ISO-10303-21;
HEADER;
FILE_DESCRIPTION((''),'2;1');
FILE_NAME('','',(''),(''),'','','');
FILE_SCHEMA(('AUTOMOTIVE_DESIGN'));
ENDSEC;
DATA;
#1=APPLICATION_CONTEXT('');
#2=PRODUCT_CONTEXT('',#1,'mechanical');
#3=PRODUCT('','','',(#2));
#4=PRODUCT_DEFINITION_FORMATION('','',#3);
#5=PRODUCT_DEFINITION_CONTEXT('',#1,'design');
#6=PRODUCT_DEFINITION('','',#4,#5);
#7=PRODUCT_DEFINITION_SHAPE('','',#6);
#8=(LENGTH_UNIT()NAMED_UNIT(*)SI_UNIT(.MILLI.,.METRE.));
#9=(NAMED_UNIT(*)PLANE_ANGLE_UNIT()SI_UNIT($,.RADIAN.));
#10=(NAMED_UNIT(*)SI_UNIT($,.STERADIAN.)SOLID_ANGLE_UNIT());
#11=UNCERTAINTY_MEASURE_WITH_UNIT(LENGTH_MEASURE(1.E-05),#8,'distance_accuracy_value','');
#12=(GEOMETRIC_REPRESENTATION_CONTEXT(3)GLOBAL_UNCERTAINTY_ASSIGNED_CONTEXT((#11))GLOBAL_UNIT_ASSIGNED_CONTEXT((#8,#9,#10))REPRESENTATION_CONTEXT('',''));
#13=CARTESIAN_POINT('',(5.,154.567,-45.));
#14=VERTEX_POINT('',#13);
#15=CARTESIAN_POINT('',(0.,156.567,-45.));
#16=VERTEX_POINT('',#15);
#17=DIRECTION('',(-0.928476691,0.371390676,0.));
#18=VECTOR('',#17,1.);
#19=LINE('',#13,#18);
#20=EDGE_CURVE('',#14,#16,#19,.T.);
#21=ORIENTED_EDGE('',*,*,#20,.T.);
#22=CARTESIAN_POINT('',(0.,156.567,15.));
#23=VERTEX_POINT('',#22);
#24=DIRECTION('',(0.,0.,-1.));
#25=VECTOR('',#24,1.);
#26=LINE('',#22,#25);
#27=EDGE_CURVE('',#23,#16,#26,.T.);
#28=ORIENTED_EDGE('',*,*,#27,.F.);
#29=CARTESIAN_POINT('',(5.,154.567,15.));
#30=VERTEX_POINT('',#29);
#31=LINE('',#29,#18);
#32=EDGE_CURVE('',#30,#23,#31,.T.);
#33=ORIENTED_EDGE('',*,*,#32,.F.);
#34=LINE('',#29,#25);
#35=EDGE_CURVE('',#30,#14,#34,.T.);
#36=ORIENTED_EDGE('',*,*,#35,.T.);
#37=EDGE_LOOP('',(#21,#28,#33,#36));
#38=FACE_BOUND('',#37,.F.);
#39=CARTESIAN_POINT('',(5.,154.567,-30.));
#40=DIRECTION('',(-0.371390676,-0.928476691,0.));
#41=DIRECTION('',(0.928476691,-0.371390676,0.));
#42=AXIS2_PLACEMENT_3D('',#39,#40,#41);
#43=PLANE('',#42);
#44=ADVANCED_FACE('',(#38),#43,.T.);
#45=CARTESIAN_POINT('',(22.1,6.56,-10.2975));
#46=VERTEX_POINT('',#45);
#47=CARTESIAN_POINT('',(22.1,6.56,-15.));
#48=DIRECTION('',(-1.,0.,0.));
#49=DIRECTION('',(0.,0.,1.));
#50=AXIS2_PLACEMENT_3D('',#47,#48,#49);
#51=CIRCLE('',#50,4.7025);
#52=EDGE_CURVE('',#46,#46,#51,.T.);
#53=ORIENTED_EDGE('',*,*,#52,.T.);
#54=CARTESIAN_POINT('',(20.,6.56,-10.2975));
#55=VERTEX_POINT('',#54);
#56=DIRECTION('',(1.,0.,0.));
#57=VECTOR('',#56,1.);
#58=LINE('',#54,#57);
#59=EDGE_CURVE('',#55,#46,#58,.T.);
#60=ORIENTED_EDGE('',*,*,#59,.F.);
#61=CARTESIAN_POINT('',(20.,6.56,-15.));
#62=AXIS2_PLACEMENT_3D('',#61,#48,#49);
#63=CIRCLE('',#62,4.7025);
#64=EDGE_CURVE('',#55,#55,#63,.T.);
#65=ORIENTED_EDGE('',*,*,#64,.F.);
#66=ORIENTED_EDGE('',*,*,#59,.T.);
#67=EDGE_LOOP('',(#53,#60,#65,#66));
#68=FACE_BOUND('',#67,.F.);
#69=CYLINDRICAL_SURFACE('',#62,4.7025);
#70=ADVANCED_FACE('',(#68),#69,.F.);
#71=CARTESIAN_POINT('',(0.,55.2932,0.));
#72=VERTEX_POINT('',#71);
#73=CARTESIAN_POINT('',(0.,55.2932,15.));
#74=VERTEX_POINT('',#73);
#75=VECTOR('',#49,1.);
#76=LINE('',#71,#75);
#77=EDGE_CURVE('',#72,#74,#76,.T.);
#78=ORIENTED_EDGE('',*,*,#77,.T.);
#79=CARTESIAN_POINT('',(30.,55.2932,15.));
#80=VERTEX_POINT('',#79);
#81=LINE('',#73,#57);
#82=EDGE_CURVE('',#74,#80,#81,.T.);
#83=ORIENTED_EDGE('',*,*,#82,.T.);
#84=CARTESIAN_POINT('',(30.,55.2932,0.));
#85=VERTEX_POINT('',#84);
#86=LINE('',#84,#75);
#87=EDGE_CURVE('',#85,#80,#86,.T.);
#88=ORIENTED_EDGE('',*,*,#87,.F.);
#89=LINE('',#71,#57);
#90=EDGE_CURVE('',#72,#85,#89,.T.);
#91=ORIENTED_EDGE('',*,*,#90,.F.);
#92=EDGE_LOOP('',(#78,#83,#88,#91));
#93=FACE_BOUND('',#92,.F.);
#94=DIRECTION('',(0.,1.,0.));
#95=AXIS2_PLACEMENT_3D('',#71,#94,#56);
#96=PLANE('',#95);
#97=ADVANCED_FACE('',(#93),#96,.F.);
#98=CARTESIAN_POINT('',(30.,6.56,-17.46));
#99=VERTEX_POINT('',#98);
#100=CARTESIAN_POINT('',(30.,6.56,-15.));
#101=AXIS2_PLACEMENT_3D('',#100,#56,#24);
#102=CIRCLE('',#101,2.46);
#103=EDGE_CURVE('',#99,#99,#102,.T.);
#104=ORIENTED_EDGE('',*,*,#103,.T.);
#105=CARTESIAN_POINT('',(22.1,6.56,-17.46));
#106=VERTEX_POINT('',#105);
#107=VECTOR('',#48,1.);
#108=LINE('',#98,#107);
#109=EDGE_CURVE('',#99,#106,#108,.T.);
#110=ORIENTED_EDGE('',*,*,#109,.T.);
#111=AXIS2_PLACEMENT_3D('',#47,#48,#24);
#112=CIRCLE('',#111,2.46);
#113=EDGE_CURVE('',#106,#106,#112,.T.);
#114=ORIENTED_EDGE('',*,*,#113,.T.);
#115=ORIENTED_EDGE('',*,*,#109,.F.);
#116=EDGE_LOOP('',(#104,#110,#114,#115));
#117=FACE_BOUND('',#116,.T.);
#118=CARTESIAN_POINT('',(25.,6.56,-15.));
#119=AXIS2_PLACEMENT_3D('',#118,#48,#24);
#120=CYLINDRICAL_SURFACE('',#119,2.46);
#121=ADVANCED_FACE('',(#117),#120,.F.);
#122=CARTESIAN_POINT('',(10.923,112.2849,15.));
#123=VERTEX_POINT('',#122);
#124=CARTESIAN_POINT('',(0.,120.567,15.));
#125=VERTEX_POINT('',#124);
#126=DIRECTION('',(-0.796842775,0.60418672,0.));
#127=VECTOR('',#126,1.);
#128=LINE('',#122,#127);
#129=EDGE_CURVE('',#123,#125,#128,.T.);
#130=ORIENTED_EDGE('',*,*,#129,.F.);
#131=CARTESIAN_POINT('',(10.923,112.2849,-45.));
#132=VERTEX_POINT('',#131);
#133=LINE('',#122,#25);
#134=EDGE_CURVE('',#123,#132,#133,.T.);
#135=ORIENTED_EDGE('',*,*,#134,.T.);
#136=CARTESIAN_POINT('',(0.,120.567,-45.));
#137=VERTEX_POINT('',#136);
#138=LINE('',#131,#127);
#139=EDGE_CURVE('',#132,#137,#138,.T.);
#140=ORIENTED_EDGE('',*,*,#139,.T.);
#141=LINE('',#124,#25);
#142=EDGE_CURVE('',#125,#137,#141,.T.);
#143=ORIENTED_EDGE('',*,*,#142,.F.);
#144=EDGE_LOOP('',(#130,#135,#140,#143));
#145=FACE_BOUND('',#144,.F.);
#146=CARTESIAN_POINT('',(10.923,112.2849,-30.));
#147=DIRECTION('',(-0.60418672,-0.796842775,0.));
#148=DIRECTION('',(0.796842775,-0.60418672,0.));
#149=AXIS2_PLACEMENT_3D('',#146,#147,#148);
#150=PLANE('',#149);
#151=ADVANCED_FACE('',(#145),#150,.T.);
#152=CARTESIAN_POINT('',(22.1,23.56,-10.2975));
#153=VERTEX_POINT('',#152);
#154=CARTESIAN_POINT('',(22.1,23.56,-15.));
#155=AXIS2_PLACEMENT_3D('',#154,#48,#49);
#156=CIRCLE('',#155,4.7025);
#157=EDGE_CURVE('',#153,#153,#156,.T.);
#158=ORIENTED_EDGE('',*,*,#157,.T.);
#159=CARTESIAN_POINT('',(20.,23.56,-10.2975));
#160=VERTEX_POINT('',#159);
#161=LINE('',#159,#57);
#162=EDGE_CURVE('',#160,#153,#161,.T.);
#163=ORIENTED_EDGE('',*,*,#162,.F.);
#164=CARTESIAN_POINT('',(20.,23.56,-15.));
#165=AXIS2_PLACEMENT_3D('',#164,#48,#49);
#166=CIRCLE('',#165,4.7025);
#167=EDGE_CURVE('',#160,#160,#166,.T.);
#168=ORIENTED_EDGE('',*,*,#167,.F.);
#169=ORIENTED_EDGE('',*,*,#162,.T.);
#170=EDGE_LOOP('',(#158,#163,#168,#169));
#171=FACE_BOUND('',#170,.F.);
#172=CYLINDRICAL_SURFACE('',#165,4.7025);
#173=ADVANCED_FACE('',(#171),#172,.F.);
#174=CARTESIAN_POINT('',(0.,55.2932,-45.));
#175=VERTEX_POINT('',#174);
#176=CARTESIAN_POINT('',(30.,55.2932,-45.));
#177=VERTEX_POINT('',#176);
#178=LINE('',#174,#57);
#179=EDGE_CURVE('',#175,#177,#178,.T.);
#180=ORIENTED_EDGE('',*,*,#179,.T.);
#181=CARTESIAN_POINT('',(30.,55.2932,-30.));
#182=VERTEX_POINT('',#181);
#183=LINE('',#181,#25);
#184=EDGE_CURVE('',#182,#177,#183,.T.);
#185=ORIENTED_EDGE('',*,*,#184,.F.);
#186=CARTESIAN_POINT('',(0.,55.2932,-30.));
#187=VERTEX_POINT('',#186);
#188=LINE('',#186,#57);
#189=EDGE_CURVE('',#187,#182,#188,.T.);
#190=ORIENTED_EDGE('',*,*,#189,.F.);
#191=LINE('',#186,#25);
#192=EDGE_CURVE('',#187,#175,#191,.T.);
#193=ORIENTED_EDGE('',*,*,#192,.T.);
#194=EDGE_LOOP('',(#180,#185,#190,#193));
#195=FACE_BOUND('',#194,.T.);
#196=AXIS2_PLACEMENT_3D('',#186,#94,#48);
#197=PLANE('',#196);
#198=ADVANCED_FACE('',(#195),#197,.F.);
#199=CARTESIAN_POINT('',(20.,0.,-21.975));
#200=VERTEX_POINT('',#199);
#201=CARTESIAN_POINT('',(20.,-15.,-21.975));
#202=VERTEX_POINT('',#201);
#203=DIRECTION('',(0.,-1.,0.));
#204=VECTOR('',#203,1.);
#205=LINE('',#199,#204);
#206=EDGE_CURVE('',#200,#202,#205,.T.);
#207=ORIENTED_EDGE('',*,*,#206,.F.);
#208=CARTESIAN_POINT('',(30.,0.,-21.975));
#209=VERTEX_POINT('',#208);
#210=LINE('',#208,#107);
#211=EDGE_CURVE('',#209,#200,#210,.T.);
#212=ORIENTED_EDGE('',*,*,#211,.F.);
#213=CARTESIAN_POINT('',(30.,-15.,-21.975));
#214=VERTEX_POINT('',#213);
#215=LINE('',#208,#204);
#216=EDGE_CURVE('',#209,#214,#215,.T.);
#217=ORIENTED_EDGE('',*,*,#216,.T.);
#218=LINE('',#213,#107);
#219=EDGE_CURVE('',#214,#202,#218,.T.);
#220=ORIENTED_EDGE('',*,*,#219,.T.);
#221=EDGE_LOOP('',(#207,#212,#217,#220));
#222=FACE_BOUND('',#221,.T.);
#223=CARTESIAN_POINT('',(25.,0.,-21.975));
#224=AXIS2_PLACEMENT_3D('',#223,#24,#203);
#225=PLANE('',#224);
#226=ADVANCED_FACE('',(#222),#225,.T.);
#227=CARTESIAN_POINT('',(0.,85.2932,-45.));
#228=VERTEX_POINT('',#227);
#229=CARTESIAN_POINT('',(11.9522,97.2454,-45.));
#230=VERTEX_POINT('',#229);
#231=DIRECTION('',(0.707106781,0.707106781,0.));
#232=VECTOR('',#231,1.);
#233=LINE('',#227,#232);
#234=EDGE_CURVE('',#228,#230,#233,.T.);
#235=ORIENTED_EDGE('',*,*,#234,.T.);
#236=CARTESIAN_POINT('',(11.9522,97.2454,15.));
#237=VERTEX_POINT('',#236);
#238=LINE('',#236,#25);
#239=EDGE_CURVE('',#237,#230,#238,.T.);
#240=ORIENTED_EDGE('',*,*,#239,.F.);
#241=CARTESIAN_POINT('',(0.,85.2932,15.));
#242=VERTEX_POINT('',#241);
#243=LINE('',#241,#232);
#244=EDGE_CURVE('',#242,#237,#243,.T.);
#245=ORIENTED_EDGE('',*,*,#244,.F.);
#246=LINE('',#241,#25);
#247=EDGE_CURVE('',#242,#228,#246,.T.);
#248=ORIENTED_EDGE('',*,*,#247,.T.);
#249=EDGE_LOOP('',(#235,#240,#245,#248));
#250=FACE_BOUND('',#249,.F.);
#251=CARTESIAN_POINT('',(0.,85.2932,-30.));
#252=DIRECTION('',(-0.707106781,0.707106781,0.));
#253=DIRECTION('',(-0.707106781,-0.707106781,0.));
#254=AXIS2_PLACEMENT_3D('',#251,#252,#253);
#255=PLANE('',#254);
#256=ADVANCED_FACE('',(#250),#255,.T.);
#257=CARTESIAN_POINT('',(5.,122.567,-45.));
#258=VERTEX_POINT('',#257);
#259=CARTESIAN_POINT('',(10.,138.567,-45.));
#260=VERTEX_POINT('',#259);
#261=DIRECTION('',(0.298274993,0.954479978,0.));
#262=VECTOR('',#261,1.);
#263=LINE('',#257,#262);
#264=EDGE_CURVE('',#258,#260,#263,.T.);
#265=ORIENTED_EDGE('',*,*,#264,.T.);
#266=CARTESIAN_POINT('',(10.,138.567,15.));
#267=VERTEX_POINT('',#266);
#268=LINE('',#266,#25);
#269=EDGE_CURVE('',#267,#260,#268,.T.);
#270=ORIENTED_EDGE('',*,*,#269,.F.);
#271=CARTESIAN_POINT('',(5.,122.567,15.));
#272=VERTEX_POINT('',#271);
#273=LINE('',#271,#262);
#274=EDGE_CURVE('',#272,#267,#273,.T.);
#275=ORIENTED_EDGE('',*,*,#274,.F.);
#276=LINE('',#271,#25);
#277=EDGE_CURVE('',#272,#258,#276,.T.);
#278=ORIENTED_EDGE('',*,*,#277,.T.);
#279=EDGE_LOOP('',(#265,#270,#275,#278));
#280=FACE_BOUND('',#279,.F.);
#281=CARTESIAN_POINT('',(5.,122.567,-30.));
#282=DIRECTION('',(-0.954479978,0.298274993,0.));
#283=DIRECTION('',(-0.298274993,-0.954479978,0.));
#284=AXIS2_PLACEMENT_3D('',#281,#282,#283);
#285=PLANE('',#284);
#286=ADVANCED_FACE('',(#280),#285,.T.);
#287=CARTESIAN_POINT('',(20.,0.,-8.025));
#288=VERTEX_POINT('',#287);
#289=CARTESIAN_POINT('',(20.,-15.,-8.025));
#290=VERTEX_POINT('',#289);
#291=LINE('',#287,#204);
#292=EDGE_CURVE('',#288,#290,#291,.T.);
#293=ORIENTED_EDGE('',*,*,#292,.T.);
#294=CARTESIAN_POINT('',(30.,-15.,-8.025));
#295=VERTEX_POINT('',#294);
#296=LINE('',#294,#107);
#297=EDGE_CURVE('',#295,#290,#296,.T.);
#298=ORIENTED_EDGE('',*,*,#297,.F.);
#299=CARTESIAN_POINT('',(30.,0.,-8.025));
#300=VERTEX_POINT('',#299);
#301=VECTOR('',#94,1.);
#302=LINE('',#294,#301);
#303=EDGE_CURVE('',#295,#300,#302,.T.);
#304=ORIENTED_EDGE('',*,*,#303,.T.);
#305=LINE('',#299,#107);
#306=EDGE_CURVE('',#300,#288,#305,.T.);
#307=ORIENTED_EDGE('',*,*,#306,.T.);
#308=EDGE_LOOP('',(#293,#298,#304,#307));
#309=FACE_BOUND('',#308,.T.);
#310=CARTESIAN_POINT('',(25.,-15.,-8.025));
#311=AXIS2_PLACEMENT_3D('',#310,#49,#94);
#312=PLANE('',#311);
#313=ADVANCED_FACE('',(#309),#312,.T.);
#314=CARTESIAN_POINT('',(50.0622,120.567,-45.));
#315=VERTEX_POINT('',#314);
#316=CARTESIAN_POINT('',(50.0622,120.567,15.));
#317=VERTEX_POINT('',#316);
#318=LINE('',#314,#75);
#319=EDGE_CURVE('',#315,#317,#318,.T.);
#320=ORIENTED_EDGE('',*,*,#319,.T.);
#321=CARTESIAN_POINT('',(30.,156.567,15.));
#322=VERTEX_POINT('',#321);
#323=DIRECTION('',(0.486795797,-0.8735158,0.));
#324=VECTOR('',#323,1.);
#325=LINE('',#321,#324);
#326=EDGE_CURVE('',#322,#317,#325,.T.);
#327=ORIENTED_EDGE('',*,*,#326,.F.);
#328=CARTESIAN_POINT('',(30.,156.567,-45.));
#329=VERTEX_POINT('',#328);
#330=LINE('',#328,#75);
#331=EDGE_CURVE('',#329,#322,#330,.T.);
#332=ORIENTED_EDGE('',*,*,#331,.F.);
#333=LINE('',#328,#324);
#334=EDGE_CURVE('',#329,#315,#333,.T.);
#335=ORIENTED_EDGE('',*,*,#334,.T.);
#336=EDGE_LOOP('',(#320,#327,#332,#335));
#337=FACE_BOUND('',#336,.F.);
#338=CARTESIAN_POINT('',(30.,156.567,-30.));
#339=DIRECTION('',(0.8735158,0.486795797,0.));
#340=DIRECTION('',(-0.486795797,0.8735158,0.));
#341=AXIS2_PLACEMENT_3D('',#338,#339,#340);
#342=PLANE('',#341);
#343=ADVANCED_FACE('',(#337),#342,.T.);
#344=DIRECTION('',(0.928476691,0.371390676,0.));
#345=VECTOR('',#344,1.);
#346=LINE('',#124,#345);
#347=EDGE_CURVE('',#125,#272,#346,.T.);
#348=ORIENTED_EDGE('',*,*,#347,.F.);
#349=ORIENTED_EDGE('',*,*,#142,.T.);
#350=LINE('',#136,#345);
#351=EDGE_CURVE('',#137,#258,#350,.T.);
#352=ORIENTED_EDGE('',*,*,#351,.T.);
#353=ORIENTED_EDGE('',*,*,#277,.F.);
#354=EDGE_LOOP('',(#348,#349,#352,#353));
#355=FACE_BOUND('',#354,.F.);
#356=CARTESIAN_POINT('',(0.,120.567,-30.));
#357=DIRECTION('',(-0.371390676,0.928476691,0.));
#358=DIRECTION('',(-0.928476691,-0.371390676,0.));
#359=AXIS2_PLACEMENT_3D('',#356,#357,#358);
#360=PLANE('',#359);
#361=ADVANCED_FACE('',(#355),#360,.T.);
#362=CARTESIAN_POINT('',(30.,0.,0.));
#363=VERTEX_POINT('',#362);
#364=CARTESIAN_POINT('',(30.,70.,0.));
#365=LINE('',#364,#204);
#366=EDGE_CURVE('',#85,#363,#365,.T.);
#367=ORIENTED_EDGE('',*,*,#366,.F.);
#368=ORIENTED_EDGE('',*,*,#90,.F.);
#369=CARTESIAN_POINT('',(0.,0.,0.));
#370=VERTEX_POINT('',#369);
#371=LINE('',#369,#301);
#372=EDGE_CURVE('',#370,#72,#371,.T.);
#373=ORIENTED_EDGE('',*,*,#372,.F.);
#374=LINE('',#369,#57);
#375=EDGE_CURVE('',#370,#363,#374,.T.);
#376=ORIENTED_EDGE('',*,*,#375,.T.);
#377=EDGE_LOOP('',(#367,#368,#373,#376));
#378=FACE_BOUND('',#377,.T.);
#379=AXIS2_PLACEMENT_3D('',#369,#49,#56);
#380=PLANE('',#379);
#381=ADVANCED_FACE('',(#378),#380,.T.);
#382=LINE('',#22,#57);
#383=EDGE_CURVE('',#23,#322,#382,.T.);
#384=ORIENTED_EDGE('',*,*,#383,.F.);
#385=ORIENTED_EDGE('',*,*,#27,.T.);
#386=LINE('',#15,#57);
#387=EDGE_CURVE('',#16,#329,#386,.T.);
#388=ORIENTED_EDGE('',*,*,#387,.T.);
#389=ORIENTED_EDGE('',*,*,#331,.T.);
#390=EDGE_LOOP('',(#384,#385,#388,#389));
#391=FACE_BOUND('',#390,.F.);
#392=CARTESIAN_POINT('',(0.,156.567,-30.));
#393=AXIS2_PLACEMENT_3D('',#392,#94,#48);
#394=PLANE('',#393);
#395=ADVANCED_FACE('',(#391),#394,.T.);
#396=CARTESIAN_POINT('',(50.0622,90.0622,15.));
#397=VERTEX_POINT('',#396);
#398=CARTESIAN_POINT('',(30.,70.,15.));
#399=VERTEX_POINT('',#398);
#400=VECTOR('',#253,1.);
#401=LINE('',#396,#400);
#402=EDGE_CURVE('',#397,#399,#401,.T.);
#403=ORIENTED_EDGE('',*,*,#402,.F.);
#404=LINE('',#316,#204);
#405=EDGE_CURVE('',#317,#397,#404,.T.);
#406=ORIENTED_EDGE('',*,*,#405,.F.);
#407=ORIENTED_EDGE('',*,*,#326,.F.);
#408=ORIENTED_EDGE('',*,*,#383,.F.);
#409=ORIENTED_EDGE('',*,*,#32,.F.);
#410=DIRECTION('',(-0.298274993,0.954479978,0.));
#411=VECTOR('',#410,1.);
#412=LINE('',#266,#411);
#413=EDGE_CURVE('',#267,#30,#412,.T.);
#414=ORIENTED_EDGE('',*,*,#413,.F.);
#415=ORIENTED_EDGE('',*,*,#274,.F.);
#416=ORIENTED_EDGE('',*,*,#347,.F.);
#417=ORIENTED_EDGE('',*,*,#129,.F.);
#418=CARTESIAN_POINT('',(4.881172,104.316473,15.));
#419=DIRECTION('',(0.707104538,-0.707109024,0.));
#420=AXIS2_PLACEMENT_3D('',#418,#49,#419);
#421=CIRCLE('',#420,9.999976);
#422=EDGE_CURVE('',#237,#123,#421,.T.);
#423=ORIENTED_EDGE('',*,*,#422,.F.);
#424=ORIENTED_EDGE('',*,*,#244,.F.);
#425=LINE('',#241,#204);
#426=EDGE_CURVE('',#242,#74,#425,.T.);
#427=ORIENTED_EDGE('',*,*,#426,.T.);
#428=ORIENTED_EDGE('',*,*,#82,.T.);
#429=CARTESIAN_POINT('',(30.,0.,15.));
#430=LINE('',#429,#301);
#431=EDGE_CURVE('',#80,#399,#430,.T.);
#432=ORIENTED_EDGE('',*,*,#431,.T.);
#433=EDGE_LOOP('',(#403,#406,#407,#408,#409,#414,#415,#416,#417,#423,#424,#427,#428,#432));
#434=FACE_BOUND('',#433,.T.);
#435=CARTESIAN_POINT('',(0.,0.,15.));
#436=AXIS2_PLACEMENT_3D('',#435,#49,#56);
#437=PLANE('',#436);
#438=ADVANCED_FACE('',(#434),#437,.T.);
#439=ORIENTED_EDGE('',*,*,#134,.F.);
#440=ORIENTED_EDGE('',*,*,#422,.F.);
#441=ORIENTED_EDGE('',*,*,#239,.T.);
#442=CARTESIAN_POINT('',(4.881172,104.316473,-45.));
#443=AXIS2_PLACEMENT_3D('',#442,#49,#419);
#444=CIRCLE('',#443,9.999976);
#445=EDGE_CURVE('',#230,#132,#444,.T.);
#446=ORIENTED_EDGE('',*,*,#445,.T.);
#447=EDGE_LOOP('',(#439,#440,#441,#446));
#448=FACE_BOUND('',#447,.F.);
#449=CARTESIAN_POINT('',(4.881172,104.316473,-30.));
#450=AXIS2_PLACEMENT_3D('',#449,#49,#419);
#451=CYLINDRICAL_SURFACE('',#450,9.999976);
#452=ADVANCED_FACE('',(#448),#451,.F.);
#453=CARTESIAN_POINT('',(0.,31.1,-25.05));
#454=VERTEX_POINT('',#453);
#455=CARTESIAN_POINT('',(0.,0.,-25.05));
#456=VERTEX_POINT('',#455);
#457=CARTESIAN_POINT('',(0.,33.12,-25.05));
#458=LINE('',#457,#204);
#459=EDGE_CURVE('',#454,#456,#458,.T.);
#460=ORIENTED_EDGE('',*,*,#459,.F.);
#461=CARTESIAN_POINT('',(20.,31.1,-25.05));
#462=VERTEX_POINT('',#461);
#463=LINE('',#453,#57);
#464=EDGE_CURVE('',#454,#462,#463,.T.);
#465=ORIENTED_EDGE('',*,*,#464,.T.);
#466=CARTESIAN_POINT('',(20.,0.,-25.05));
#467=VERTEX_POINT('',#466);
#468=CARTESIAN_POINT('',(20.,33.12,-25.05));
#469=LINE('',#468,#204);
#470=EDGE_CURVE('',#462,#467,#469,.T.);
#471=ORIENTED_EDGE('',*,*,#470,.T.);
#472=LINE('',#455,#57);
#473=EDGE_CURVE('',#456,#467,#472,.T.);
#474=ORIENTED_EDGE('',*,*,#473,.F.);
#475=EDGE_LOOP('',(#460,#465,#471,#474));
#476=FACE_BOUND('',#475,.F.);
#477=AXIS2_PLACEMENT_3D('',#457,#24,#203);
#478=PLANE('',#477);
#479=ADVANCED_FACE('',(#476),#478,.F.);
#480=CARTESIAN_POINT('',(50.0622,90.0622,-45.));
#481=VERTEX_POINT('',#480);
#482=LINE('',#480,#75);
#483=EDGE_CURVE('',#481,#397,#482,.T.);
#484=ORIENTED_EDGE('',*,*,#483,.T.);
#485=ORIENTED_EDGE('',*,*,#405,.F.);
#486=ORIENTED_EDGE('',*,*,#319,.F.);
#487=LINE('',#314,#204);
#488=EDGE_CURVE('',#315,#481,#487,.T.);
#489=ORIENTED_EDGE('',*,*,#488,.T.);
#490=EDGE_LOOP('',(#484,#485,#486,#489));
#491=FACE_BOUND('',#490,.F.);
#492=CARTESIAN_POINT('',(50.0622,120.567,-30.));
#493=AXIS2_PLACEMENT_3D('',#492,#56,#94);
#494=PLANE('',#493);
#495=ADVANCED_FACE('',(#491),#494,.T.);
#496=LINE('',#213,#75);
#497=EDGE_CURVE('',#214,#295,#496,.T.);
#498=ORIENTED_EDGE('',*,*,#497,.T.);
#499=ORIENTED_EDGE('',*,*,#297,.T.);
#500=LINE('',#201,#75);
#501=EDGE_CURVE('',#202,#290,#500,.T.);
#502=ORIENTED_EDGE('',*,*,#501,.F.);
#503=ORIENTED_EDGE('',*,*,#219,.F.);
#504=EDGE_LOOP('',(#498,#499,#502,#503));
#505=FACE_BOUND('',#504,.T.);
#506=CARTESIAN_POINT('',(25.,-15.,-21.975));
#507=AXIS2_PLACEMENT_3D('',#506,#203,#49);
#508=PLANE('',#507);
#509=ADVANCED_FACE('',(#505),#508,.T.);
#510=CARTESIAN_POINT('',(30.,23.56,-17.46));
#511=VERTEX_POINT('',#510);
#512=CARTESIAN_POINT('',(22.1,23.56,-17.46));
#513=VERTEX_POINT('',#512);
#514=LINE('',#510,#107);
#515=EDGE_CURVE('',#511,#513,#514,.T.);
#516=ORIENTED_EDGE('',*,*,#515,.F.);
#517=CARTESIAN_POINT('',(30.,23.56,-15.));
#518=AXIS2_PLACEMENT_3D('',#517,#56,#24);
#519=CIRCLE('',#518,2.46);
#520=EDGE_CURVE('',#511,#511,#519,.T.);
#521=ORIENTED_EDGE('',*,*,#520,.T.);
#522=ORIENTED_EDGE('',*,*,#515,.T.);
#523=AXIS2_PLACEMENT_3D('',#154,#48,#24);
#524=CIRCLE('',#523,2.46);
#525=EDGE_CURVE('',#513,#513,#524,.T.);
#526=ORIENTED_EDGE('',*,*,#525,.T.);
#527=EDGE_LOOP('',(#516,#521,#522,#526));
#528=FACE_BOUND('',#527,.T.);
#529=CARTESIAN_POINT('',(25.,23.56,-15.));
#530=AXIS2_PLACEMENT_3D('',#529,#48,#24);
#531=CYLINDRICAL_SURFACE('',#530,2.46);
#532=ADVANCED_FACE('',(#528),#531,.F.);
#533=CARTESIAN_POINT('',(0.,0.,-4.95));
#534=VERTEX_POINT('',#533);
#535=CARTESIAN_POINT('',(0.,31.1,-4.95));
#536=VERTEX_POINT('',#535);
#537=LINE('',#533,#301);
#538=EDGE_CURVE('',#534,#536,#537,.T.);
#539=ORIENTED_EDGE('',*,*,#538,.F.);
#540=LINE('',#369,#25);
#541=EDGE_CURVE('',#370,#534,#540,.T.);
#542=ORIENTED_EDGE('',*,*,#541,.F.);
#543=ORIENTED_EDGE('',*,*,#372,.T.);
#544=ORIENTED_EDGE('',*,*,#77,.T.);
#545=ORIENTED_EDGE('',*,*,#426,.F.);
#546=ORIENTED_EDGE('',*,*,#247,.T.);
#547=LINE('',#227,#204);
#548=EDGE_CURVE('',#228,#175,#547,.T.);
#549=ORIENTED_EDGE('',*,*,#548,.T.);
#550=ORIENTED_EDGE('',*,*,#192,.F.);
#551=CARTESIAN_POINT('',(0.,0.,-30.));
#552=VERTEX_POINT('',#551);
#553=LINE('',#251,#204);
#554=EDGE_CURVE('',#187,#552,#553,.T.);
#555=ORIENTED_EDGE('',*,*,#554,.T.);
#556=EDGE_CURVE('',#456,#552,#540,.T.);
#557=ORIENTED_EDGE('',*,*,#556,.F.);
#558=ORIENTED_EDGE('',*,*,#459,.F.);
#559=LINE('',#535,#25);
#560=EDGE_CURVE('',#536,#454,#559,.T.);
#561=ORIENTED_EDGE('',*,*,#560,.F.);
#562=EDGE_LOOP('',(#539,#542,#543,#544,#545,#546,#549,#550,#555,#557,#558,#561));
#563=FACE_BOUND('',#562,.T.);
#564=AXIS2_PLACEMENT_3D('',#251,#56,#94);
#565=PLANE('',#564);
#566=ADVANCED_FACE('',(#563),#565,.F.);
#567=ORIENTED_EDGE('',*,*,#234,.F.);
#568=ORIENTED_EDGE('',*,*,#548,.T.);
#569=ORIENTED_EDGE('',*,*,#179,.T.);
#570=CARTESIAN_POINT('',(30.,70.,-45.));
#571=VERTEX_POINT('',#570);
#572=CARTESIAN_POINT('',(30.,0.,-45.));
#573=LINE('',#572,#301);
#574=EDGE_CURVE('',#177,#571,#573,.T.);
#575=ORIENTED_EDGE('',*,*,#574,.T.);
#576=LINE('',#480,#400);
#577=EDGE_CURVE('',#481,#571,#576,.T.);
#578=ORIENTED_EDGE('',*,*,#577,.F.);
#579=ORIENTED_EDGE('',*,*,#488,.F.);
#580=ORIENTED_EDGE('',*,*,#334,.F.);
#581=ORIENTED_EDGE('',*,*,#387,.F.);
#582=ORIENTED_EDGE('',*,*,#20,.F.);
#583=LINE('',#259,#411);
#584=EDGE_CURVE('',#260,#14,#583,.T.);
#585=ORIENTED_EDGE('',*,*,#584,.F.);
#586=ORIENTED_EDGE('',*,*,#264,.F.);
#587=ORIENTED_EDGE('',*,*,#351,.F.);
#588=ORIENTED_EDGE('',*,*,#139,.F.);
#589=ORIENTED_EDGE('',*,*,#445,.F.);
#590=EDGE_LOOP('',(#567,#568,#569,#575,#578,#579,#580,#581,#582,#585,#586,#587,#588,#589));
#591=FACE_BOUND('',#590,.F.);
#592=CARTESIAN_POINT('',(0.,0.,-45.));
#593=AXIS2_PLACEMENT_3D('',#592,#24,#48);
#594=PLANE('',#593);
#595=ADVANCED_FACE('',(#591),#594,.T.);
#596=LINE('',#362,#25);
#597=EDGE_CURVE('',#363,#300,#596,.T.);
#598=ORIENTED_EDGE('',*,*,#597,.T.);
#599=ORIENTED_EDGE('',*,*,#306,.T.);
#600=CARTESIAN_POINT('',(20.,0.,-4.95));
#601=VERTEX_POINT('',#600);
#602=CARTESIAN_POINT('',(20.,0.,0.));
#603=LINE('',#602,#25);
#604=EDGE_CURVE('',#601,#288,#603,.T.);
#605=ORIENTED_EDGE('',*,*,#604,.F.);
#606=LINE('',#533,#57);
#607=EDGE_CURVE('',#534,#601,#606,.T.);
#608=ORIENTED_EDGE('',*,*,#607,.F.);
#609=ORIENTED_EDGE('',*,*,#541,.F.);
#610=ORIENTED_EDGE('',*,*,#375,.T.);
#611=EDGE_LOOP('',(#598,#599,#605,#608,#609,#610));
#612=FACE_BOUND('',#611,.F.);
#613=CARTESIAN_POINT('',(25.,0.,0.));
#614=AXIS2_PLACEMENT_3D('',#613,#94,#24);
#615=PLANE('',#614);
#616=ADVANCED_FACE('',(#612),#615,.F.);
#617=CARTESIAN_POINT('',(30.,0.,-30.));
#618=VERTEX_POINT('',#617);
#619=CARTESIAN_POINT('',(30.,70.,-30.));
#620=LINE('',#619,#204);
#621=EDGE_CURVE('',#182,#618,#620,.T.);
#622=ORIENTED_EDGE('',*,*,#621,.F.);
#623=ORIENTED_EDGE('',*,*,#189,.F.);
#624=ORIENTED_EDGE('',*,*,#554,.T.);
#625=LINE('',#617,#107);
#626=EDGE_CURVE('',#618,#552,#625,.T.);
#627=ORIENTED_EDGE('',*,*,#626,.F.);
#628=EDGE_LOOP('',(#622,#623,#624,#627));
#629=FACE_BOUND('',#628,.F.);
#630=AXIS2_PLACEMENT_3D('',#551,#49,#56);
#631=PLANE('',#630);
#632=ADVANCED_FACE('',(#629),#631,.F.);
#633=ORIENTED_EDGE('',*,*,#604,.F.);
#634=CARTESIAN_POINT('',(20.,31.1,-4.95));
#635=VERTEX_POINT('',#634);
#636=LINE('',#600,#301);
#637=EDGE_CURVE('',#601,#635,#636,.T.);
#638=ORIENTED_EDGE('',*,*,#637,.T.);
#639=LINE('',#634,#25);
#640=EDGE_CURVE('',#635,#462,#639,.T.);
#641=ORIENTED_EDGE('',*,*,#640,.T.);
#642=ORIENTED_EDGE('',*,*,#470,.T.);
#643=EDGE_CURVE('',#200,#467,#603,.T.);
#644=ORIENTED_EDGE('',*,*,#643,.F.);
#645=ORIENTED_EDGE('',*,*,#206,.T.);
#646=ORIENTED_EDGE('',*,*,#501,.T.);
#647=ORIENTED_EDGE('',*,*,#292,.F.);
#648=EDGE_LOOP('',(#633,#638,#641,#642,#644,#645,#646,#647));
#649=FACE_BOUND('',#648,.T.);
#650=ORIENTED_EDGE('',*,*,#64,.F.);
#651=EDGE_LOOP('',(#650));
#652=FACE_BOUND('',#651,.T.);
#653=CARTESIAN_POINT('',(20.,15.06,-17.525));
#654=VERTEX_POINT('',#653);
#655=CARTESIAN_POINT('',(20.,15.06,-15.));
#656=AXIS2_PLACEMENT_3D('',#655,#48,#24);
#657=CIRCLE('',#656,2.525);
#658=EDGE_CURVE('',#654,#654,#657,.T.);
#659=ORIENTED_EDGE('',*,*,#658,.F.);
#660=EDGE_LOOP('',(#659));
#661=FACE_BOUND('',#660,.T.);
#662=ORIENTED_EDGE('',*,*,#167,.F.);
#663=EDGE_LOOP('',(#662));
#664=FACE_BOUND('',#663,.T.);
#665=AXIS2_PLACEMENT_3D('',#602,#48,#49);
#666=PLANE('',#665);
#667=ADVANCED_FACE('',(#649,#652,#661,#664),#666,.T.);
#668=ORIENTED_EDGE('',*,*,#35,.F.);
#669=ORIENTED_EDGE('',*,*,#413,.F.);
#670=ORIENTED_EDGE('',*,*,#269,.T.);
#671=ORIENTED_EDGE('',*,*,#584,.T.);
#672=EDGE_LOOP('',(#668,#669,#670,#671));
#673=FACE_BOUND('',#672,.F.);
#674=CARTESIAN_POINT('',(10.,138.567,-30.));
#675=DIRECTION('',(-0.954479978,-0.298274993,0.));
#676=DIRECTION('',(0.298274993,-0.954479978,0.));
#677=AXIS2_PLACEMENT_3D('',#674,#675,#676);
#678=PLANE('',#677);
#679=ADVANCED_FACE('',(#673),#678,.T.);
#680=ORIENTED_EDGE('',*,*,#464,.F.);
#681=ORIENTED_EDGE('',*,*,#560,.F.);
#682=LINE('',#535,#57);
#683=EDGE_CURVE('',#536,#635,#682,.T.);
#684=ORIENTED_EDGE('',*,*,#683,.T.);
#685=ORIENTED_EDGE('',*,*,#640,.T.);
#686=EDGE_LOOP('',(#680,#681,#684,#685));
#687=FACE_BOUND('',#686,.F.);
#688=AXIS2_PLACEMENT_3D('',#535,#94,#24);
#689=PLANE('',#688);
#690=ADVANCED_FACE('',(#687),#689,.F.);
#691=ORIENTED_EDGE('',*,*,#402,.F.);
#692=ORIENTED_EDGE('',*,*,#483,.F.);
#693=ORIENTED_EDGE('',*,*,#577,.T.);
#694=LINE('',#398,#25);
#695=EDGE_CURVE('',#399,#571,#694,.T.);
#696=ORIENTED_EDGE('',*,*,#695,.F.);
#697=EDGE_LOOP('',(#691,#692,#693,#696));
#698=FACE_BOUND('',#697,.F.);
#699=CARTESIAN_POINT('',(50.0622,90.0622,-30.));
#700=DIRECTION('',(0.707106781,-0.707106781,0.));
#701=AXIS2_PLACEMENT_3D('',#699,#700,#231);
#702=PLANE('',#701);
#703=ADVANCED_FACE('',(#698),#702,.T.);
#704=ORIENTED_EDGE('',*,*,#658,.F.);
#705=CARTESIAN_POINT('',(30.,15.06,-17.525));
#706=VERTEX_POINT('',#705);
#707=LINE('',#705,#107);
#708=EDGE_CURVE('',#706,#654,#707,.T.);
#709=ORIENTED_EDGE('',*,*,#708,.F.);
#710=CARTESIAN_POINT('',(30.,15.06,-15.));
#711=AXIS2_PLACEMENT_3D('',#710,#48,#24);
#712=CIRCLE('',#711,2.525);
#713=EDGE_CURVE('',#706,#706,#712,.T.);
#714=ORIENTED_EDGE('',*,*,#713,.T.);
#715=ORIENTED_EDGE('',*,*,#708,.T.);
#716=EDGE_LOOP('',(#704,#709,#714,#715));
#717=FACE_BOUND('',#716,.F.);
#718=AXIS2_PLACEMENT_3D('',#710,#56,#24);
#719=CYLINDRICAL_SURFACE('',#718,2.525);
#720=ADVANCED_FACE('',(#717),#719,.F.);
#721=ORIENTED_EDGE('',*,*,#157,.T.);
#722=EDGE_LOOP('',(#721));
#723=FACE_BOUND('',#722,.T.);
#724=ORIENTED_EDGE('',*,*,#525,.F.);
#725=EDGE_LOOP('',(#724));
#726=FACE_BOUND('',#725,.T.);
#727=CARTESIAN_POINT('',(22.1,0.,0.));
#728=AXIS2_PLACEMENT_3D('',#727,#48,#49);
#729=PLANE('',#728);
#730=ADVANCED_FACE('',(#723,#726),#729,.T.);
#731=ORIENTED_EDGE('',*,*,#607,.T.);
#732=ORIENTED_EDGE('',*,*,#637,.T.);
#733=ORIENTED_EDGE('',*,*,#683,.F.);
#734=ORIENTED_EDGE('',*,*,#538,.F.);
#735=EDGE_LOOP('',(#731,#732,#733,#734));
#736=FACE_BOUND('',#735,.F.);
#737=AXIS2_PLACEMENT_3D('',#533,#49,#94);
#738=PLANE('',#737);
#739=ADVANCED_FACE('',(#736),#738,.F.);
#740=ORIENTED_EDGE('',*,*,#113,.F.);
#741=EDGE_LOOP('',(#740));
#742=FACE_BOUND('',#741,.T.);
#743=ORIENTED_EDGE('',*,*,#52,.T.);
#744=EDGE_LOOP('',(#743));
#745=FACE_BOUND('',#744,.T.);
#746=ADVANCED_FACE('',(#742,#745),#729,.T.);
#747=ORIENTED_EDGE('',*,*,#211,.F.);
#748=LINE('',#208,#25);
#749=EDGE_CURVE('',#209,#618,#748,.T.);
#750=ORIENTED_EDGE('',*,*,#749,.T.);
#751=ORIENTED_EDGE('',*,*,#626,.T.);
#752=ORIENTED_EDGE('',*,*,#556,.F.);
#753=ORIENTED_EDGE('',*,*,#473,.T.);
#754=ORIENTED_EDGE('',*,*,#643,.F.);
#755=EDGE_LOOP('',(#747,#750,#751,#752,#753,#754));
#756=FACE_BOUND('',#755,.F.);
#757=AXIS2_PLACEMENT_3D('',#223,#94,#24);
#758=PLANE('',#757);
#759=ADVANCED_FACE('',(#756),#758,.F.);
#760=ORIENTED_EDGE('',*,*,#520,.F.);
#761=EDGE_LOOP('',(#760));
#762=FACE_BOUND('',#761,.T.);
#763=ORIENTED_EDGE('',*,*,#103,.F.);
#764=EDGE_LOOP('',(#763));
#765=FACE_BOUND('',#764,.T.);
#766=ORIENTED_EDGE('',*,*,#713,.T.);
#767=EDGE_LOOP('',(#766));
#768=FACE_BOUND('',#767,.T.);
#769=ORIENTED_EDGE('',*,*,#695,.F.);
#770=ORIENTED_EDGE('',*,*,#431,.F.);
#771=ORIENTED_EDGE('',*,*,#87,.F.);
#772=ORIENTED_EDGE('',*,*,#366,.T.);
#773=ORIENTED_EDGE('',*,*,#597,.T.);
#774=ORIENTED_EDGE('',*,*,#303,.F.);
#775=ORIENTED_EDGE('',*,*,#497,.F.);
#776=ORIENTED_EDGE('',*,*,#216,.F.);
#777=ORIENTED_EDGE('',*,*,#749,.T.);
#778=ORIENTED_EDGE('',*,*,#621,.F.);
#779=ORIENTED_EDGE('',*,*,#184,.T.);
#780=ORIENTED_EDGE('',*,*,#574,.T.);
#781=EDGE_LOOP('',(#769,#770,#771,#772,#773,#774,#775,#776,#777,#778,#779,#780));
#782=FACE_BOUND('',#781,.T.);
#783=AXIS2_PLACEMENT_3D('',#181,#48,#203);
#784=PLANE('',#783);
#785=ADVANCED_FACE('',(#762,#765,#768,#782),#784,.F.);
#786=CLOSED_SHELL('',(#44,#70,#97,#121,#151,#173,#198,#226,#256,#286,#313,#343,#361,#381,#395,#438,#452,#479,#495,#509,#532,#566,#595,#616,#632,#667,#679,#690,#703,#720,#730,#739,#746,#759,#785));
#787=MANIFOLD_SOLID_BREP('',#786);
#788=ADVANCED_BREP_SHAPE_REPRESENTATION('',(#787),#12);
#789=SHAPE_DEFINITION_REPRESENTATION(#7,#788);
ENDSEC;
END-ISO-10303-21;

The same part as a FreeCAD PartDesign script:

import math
import FreeCAD as App
import Part
import Sketcher
Q = App.Units.Quantity

doc = App.newDocument("Part")
body = doc.addObject("PartDesign::Body", "Body")

# Sketch on XY plane
sketch1 = body.newObject("Sketcher::SketchObject", "Sketch")
sketch1.AttachmentSupport = (doc.getObject("XY_Plane"), [""])
sketch1.MapMode = "FlatFace"
sketch1.addGeometry([
    Part.LineSegment(App.Vector(0, 40, 0), App.Vector(0, 0, 0)),
    Part.LineSegment(App.Vector(0, 0, 0), App.Vector(25, 0, 0)),
    Part.LineSegment(App.Vector(25, 0, 0), App.Vector(25, 40, 0)),
    Part.LineSegment(App.Vector(25, 40, 0), App.Vector(0, 40, 0)),
], False)
sketch1.addConstraint([
    Sketcher.Constraint("Coincident", 0, 2, 1, 1),
    Sketcher.Constraint("Coincident", 1, 2, 2, 1),
    Sketcher.Constraint("Coincident", 2, 2, 3, 1),
    Sketcher.Constraint("Coincident", 3, 2, 0, 1),
    Sketcher.Constraint("Vertical", 0),
    Sketcher.Constraint("Horizontal", 1),
    Sketcher.Constraint("Vertical", 2),
    Sketcher.Constraint("Horizontal", 3),
    Sketcher.Constraint("Coincident", 0, 2, -1, 1),
    Sketcher.Constraint("DistanceX", 1, 1, 1, 2, Q("25 mm")),
    Sketcher.Constraint("DistanceY", 0, 2, 0, 1, Q("40 mm")),
])
pad1 = body.newObject("PartDesign::Pad", "Pad")
pad1.Profile = sketch1
pad1.Length = 30
pad1.Reversed = True

# Sketch on YZ plane
sketch2 = body.newObject("Sketcher::SketchObject", "Sketch001")
sketch2.AttachmentSupport = (doc.getObject("YZ_Plane"), [""])
sketch2.MapMode = "FlatFace"
sketch2.AttachmentOffset = App.Placement(App.Vector(0, 0, 25), App.Rotation())
sketch2.addGeometry(Part.Circle(App.Vector(6.56, -15, 0), App.Vector(0, 0, 1), 2.46), False)
sketch2.addConstraint([
    Sketcher.Constraint("Diameter", 0, Q("4.92 mm")),
    Sketcher.Constraint("DistanceY", 0, 3, -1, 1, Q("15 mm")),
    Sketcher.Constraint("DistanceX", -1, 1, 0, 3, Q("6.56 mm")),
])
pocket1 = body.newObject("PartDesign::Pocket", "Pocket")
pocket1.Profile = sketch2
pocket1.Length = 30

# Sketch on YZ plane
sketch3 = body.newObject("Sketcher::SketchObject", "Sketch002")
sketch3.AttachmentSupport = (doc.getObject("YZ_Plane"), [""])
sketch3.MapMode = "FlatFace"
sketch3.addGeometry([
    Part.LineSegment(App.Vector(0, -25.05, 0), App.Vector(0, -4.95, 0)),
    Part.LineSegment(App.Vector(0, -4.95, 0), App.Vector(33.12, -4.95, 0)),
    Part.LineSegment(App.Vector(33.12, -4.95, 0), App.Vector(33.12, -25.05, 0)),
    Part.LineSegment(App.Vector(33.12, -25.05, 0), App.Vector(0, -25.05, 0)),
], False)
sketch3.addConstraint([
    Sketcher.Constraint("Coincident", 0, 2, 1, 1),
    Sketcher.Constraint("Coincident", 1, 2, 2, 1),
    Sketcher.Constraint("Coincident", 2, 2, 3, 1),
    Sketcher.Constraint("Coincident", 3, 2, 0, 1),
    Sketcher.Constraint("Vertical", 0),
    Sketcher.Constraint("Horizontal", 1),
    Sketcher.Constraint("Vertical", 2),
    Sketcher.Constraint("Horizontal", 3),
    Sketcher.Constraint("PointOnObject", 0, 2, -2),
    Sketcher.Constraint("DistanceY", 0, 1, 0, 2, Q("20.1 mm")),
    Sketcher.Constraint("DistanceX", 1, 1, 1, 2, Q("33.12 mm")),
    Sketcher.Constraint("DistanceY", 0, 2, -1, 1, Q("4.95 mm")),
])
pocket2 = body.newObject("PartDesign::Pocket", "Pocket001")
pocket2.Profile = sketch3
pocket2.Length = 20
pocket2.Reversed = True

# Sketch on XZ plane
sketch4 = body.newObject("Sketcher::SketchObject", "Sketch003")
sketch4.AttachmentSupport = (doc.getObject("XZ_Plane"), [""])
sketch4.MapMode = "FlatFace"
sketch4.addGeometry([
    Part.LineSegment(App.Vector(25, -8.025, 0), App.Vector(20, -8.025, 0)),
    Part.LineSegment(App.Vector(20, -8.025, 0), App.Vector(20, -21.975, 0)),
    Part.LineSegment(App.Vector(20, -21.975, 0), App.Vector(25, -21.975, 0)),
    Part.LineSegment(App.Vector(25, -21.975, 0), App.Vector(25, -8.025, 0)),
], False)
sketch4.addConstraint([
    Sketcher.Constraint("Coincident", 0, 2, 1, 1),
    Sketcher.Constraint("Coincident", 1, 2, 2, 1),
    Sketcher.Constraint("Coincident", 2, 2, 3, 1),
    Sketcher.Constraint("Coincident", 3, 2, 0, 1),
    Sketcher.Constraint("Horizontal", 0),
    Sketcher.Constraint("Vertical", 1),
    Sketcher.Constraint("Horizontal", 2),
    Sketcher.Constraint("Vertical", 3),
    Sketcher.Constraint("DistanceY", 1, 2, 1, 1, Q("13.95 mm")),
    Sketcher.Constraint("DistanceX", 0, 2, 0, 1, Q("5 mm")),
    Sketcher.Constraint("DistanceX", -1, 1, 0, 2, Q("20 mm")),
    Sketcher.Constraint("DistanceY", 0, 2, -1, 1, Q("8.025 mm")),
])
pad2 = body.newObject("PartDesign::Pad", "Pad001")
pad2.Profile = sketch4
pad2.Length = 15

# Sketch on YZ plane
sketch5 = body.newObject("Sketcher::SketchObject", "Sketch004")
sketch5.AttachmentSupport = (doc.getObject("YZ_Plane"), [""])
sketch5.MapMode = "FlatFace"
sketch5.AttachmentOffset = App.Placement(App.Vector(0, 0, 20), App.Rotation())
sketch5.addGeometry([
    Part.Circle(App.Vector(6.56, -15, 0), App.Vector(0, 0, 1), 4.7025),
    Part.Circle(App.Vector(6.56, -15, 0), App.Vector(0, 0, 1), 2.46),
], False)
sketch5.addConstraint([
    Sketcher.Constraint("Coincident", 1, 3, 0, 3),
    Sketcher.Constraint("Diameter", 0, Q("9.405 mm")),
    Sketcher.Constraint("Diameter", 1, Q("4.92 mm")),
    Sketcher.Constraint("DistanceY", 0, 3, -1, 1, Q("15 mm")),
    Sketcher.Constraint("DistanceX", -1, 1, 0, 3, Q("6.56 mm")),
])
pocket3 = body.newObject("PartDesign::Pocket", "Pocket002")
pocket3.Profile = sketch5
pocket3.Length = 2.1
pocket3.Reversed = True

# Sketch on YZ plane
sketch6 = body.newObject("Sketcher::SketchObject", "Sketch005")
sketch6.AttachmentSupport = (doc.getObject("YZ_Plane"), [""])
sketch6.MapMode = "FlatFace"
sketch6.AttachmentOffset = App.Placement(App.Vector(0, 0, 25), App.Rotation())
sketch6.addGeometry(Part.Circle(App.Vector(23.56, -15, 0), App.Vector(0, 0, 1), 2.46), False)
sketch6.addConstraint([
    Sketcher.Constraint("Diameter", 0, Q("4.92 mm")),
    Sketcher.Constraint("DistanceY", 0, 3, -1, 1, Q("15 mm")),
    Sketcher.Constraint("DistanceX", -1, 1, 0, 3, Q("23.56 mm")),
])
pocket4 = body.newObject("PartDesign::Pocket", "Pocket003")
pocket4.Profile = sketch6
pocket4.Length = 10

# Sketch on YZ plane
sketch7 = body.newObject("Sketcher::SketchObject", "Sketch006")
sketch7.AttachmentSupport = (doc.getObject("YZ_Plane"), [""])
sketch7.MapMode = "FlatFace"
sketch7.AttachmentOffset = App.Placement(App.Vector(0, 0, 20), App.Rotation())
sketch7.addGeometry([
    Part.Circle(App.Vector(23.56, -15, 0), App.Vector(0, 0, 1), 4.7025),
    Part.Circle(App.Vector(23.56, -15, 0), App.Vector(0, 0, 1), 2.46),
], False)
sketch7.addConstraint([
    Sketcher.Constraint("Coincident", 1, 3, 0, 3),
    Sketcher.Constraint("Diameter", 0, Q("9.405 mm")),
    Sketcher.Constraint("Diameter", 1, Q("4.92 mm")),
    Sketcher.Constraint("DistanceY", 0, 3, -1, 1, Q("15 mm")),
    Sketcher.Constraint("DistanceX", -1, 1, 0, 3, Q("23.56 mm")),
])
pocket5 = body.newObject("PartDesign::Pocket", "Pocket004")
pocket5.Profile = sketch7
pocket5.Length = 2.1
pocket5.Reversed = True

# Sketch on YZ plane
sketch8 = body.newObject("Sketcher::SketchObject", "Sketch007")
sketch8.AttachmentSupport = (doc.getObject("YZ_Plane"), [""])
sketch8.MapMode = "FlatFace"
sketch8.AttachmentOffset = App.Placement(App.Vector(0, 0, 25), App.Rotation())
sketch8.addGeometry([
    Part.LineSegment(App.Vector(0, -30, 0), App.Vector(40, -30, 0)),  # 0
    Part.LineSegment(App.Vector(40, -30, 0), App.Vector(40, 0, 0)),  # 1
    Part.LineSegment(App.Vector(40, 0, 0), App.Vector(0, 0, 0)),  # 2
    Part.LineSegment(App.Vector(0, 0, 0), App.Vector(0, -8.025, 0)),  # 3
    Part.LineSegment(App.Vector(0, -8.025, 0), App.Vector(-15, -8.025, 0)),  # 4
    Part.LineSegment(App.Vector(-15, -8.025, 0), App.Vector(-15, -21.975, 0)),  # 5
    Part.LineSegment(App.Vector(-15, -21.975, 0), App.Vector(0, -21.975, 0)),  # 6
    Part.LineSegment(App.Vector(0, -21.975, 0), App.Vector(0, -30, 0)),  # 7
    Part.Circle(App.Vector(6.56, -15, 0), App.Vector(0, 0, 1), 2.46),  # 8
    Part.Circle(App.Vector(23.56, -15, 0), App.Vector(0, 0, 1), 2.46),  # 9
], False)
sketch8.addConstraint([
    Sketcher.Constraint("Coincident", 0, 2, 1, 1),
    Sketcher.Constraint("Coincident", 1, 2, 2, 1),
    Sketcher.Constraint("Coincident", 2, 2, 3, 1),
    Sketcher.Constraint("Coincident", 3, 2, 4, 1),
    Sketcher.Constraint("Coincident", 4, 2, 5, 1),
    Sketcher.Constraint("Coincident", 5, 2, 6, 1),
    Sketcher.Constraint("Coincident", 6, 2, 7, 1),
    Sketcher.Constraint("Coincident", 7, 2, 0, 1),
    Sketcher.Constraint("Horizontal", 0),
    Sketcher.Constraint("Vertical", 1),
    Sketcher.Constraint("Horizontal", 2),
    Sketcher.Constraint("Vertical", 3),
    Sketcher.Constraint("Horizontal", 4),
    Sketcher.Constraint("Vertical", 5),
    Sketcher.Constraint("Horizontal", 6),
    Sketcher.Constraint("Vertical", 7),
    Sketcher.Constraint("Coincident", 2, 2, -1, 1),
    Sketcher.Constraint("Equal", 8, 9),
    Sketcher.Constraint("PointOnObject", 6, 2, -2),
    Sketcher.Constraint("Horizontal", 8, 3, 9, 3),
    Sketcher.Constraint("Equal", 3, 7),
    Sketcher.Constraint("Diameter", 8, Q("4.92 mm")),
    Sketcher.Constraint("DistanceX", 0, 1, 0, 2, Q("40 mm")),
    Sketcher.Constraint("DistanceX", 4, 2, 4, 1, Q("15 mm")),
    Sketcher.Constraint("DistanceY", 1, 1, 1, 2, Q("30 mm")),
    Sketcher.Constraint("DistanceY", 8, 3, -1, 1, Q("15 mm")),
    Sketcher.Constraint("DistanceX", 8, 3, 9, 3, Q("17 mm")),
    Sketcher.Constraint("DistanceY", 5, 2, 5, 1, Q("13.95 mm")),
    Sketcher.Constraint("DistanceX", -1, 1, 8, 3, Q("6.56 mm")),
])
pad3 = body.newObject("PartDesign::Pad", "Pad002")
pad3.Profile = sketch8
pad3.Length = 5

# Sketch on XZ plane
sketch9 = body.newObject("Sketcher::SketchObject", "Sketch008")
sketch9.AttachmentSupport = (doc.getObject("XZ_Plane"), [""])
sketch9.MapMode = "FlatFace"
sketch9.AttachmentOffset = App.Placement(App.Vector(0, 0, -40), App.Rotation())
sketch9.addGeometry([
    Part.LineSegment(App.Vector(30, -30, 0), App.Vector(0, -30, 0)),
    Part.LineSegment(App.Vector(0, -30, 0), App.Vector(0, 0, 0)),
    Part.LineSegment(App.Vector(0, 0, 0), App.Vector(30, 0, 0)),
    Part.LineSegment(App.Vector(30, 0, 0), App.Vector(30, -30, 0)),
], False)
sketch9.addConstraint([
    Sketcher.Constraint("Coincident", 0, 2, 1, 1),
    Sketcher.Constraint("Coincident", 1, 2, 2, 1),
    Sketcher.Constraint("Coincident", 2, 2, 3, 1),
    Sketcher.Constraint("Coincident", 3, 2, 0, 1),
    Sketcher.Constraint("Horizontal", 0),
    Sketcher.Constraint("Vertical", 1),
    Sketcher.Constraint("Horizontal", 2),
    Sketcher.Constraint("Vertical", 3),
    Sketcher.Constraint("Coincident", 1, 2, -1, 1),
    Sketcher.Constraint("Equal", 2, 1),
    Sketcher.Constraint("DistanceX", 0, 2, 0, 1, Q("30 mm")),
])
pad4 = body.newObject("PartDesign::Pad", "Pad003")
pad4.Profile = sketch9
pad4.Length = 30
pad4.Reversed = True

# Sketch on YZ plane
sketch10 = body.newObject("Sketcher::SketchObject", "Sketch009")
sketch10.AttachmentSupport = (doc.getObject("YZ_Plane"), [""])
sketch10.MapMode = "FlatFace"
sketch10.AttachmentOffset = App.Placement(App.Vector(0, 0, 30), App.Rotation())
sketch10.addGeometry(Part.Circle(App.Vector(15.06, -15, 0), App.Vector(0, 0, 1), 2.525), False)
sketch10.addConstraint([
    Sketcher.Constraint("Diameter", 0, Q("5.05 mm")),
    Sketcher.Constraint("DistanceY", 0, 3, -1, 1, Q("15 mm")),
    Sketcher.Constraint("DistanceX", -1, 1, 0, 3, Q("15.06 mm")),
])
pocket6 = body.newObject("PartDesign::Pocket", "Pocket005")
pocket6.Profile = sketch10
pocket6.Length = 30

# Sketch on YZ plane
sketch11 = body.newObject("Sketcher::SketchObject", "Sketch010")
sketch11.AttachmentSupport = (doc.getObject("YZ_Plane"), [""])
sketch11.MapMode = "FlatFace"
sketch11.addGeometry([
    Part.LineSegment(App.Vector(33.12, -4.95, 0), App.Vector(33.12, -25.05, 0)),
    Part.LineSegment(App.Vector(33.12, -25.05, 0), App.Vector(31.1, -25.05, 0)),
    Part.LineSegment(App.Vector(31.1, -25.05, 0), App.Vector(31.1, -4.95, 0)),
    Part.LineSegment(App.Vector(31.1, -4.95, 0), App.Vector(33.12, -4.95, 0)),
], False)
sketch11.addConstraint([
    Sketcher.Constraint("Coincident", 0, 2, 1, 1),
    Sketcher.Constraint("Coincident", 1, 2, 2, 1),
    Sketcher.Constraint("Coincident", 2, 2, 3, 1),
    Sketcher.Constraint("Coincident", 3, 2, 0, 1),
    Sketcher.Constraint("Vertical", 0),
    Sketcher.Constraint("Horizontal", 1),
    Sketcher.Constraint("Vertical", 2),
    Sketcher.Constraint("Horizontal", 3),
    Sketcher.Constraint("DistanceX", 1, 2, 1, 1, Q("2.02 mm")),
    Sketcher.Constraint("DistanceY", 0, 2, 0, 1, Q("20.1 mm")),
    Sketcher.Constraint("DistanceX", -1, 1, 1, 2, Q("31.1 mm")),
    Sketcher.Constraint("DistanceY", 0, 2, -1, 1, Q("25.05 mm")),
])
pad5 = body.newObject("PartDesign::Pad", "Pad004")
pad5.Profile = sketch11
pad5.Length = 20

# Sketch on XY plane
sketch12 = body.newObject("Sketcher::SketchObject", "Sketch011")
sketch12.AttachmentSupport = (doc.getObject("XY_Plane"), [""])
sketch12.MapMode = "FlatFace"
sketch12.addGeometry([
    Part.LineSegment(App.Vector(0, 85.2932, 0), App.Vector(0, 70, 0)),  # 0
    Part.LineSegment(App.Vector(0, 70, 0), App.Vector(30, 70, 0)),  # 1
    Part.LineSegment(App.Vector(30, 70, 0), App.Vector(50.0622, 90.0622, 0)),  # 2
    Part.LineSegment(App.Vector(50.0622, 90.0622, 0), App.Vector(50.0622, 120.567, 0)),  # 3
    Part.LineSegment(App.Vector(50.0622, 120.567, 0), App.Vector(30, 156.567, 0)),  # 4
    Part.LineSegment(App.Vector(30, 156.567, 0), App.Vector(0, 156.567, 0)),  # 5
    Part.LineSegment(App.Vector(0, 156.567, 0), App.Vector(5, 154.567, 0)),  # 6
    Part.LineSegment(App.Vector(5, 154.567, 0), App.Vector(10, 138.567, 0)),  # 7
    Part.LineSegment(App.Vector(10, 138.567, 0), App.Vector(5, 122.567, 0)),  # 8
    Part.LineSegment(App.Vector(5, 122.567, 0), App.Vector(0, 120.567, 0)),  # 9
    Part.LineSegment(App.Vector(0, 120.567, 0), App.Vector(10.923, 112.2849, 0)),  # 10
    Part.ArcOfCircle(Part.Circle(App.Vector(4.8811, 104.3165, 0), App.Vector(0, 0, 1), 10.000046), math.radians(-45), math.radians(52.829413)),  # 11
    Part.LineSegment(App.Vector(11.9522, 97.2454, 0), App.Vector(0, 85.2932, 0)),  # 12
], False)
sketch12.addConstraint([
    Sketcher.Constraint("Coincident", 0, 2, 1, 1),
    Sketcher.Constraint("Coincident", 1, 2, 2, 1),
    Sketcher.Constraint("Coincident", 2, 2, 3, 1),
    Sketcher.Constraint("Coincident", 3, 2, 4, 1),
    Sketcher.Constraint("Coincident", 4, 2, 5, 1),
    Sketcher.Constraint("Coincident", 5, 2, 6, 1),
    Sketcher.Constraint("Coincident", 6, 2, 7, 1),
    Sketcher.Constraint("Coincident", 7, 2, 8, 1),
    Sketcher.Constraint("Coincident", 8, 2, 9, 1),
    Sketcher.Constraint("Coincident", 9, 2, 10, 1),
    Sketcher.Constraint("Tangent", 10, 2, 11, 2),
    Sketcher.Constraint("Tangent", 11, 1, 12, 1),
    Sketcher.Constraint("Coincident", 12, 2, 0, 1),
    Sketcher.Constraint("Vertical", 0),
    Sketcher.Constraint("Horizontal", 1),
    Sketcher.Constraint("Vertical", 3),
    Sketcher.Constraint("Horizontal", 5),
    Sketcher.Constraint("PointOnObject", 0, 2, -2),
    Sketcher.Constraint("PointOnObject", 5, 2, -2),
    Sketcher.Constraint("PointOnObject", 9, 2, -2),
    Sketcher.Constraint("Parallel", 2, 12),
    Sketcher.Constraint("Horizontal", 3, 2, 9, 2),
    Sketcher.Constraint("Vertical", 1, 2, 4, 2),
    Sketcher.Constraint("Vertical", 6, 2, 8, 2),
    Sketcher.Constraint("Equal", 7, 8),
    Sketcher.Constraint("Equal", 6, 9),
    Sketcher.Constraint("Radius", 11, Q("10 mm")),
    Sketcher.Constraint("Angle", 2, Q("45 deg")),
    Sketcher.Constraint("DistanceX", -1, 1, 7, 2, Q("10 mm")),
    Sketcher.Constraint("DistanceX", 1, 1, 1, 2, Q("30 mm")),
    Sketcher.Constraint("DistanceY", -1, 1, 0, 2, Q("70 mm")),
    Sketcher.Constraint("DistanceX", -1, 1, 6, 2, Q("5 mm")),
    Sketcher.Constraint("DistanceY", 3, 2, 4, 2, Q("36 mm")),
    Sketcher.Constraint("DistanceY", 6, 2, 5, 2, Q("2 mm")),
    Sketcher.Constraint("Angle", 4, Q("119.1302 deg")),
    Sketcher.Constraint("Angle", 10, Q("-37.1703 deg")),
    Sketcher.Constraint("Distance", 12, Q("16.903 mm")),
    Sketcher.Constraint("DistanceY", 0, 2, 0, 1, Q("15.2932 mm")),
])
pad6 = body.newObject("PartDesign::Pad", "Pad005")
pad6.Profile = sketch12
pad6.Length = 30
pad6.Reversed = True

# Sketch on XY plane
sketch13 = body.newObject("Sketcher::SketchObject", "Sketch012")
sketch13.AttachmentSupport = (doc.getObject("XY_Plane"), [""])
sketch13.MapMode = "FlatFace"
sketch13.addGeometry([
    Part.LineSegment(App.Vector(30, 70, 0), App.Vector(50.0622, 90.0622, 0)),  # 0
    Part.LineSegment(App.Vector(50.0622, 90.0622, 0), App.Vector(50.0622, 120.567, 0)),  # 1
    Part.LineSegment(App.Vector(50.0622, 120.567, 0), App.Vector(30, 156.567, 0)),  # 2
    Part.LineSegment(App.Vector(30, 156.567, 0), App.Vector(0, 156.567, 0)),  # 3
    Part.LineSegment(App.Vector(0, 156.567, 0), App.Vector(5, 154.567, 0)),  # 4
    Part.LineSegment(App.Vector(5, 154.567, 0), App.Vector(10, 138.567, 0)),  # 5
    Part.LineSegment(App.Vector(10, 138.567, 0), App.Vector(5, 122.567, 0)),  # 6
    Part.LineSegment(App.Vector(5, 122.567, 0), App.Vector(0, 120.567, 0)),  # 7
    Part.LineSegment(App.Vector(0, 120.567, 0), App.Vector(10.923, 112.2849, 0)),  # 8
    Part.ArcOfCircle(Part.Circle(App.Vector(4.8811, 104.3165, 0), App.Vector(0, 0, 1), 10.000046), math.radians(-45), math.radians(52.829413)),  # 9
    Part.LineSegment(App.Vector(11.9522, 97.2454, 0), App.Vector(0, 85.2932, 0)),  # 10
    Part.LineSegment(App.Vector(0, 85.2932, 0), App.Vector(0, 55.2932, 0)),  # 11
    Part.LineSegment(App.Vector(0, 55.2932, 0), App.Vector(30, 55.2932, 0)),  # 12
    Part.LineSegment(App.Vector(30, 55.2932, 0), App.Vector(30, 70, 0)),  # 13
], False)
sketch13.addConstraint([
    Sketcher.Constraint("Coincident", 0, 2, 1, 1),
    Sketcher.Constraint("Coincident", 1, 2, 2, 1),
    Sketcher.Constraint("Coincident", 2, 2, 3, 1),
    Sketcher.Constraint("Coincident", 3, 2, 4, 1),
    Sketcher.Constraint("Coincident", 4, 2, 5, 1),
    Sketcher.Constraint("Coincident", 5, 2, 6, 1),
    Sketcher.Constraint("Coincident", 6, 2, 7, 1),
    Sketcher.Constraint("Coincident", 7, 2, 8, 1),
    Sketcher.Constraint("Tangent", 8, 2, 9, 2),
    Sketcher.Constraint("Tangent", 9, 1, 10, 1),
    Sketcher.Constraint("Coincident", 10, 2, 11, 1),
    Sketcher.Constraint("Coincident", 11, 2, 12, 1),
    Sketcher.Constraint("Coincident", 12, 2, 13, 1),
    Sketcher.Constraint("Coincident", 13, 2, 0, 1),
    Sketcher.Constraint("Vertical", 1),
    Sketcher.Constraint("Horizontal", 3),
    Sketcher.Constraint("Vertical", 11),
    Sketcher.Constraint("Horizontal", 12),
    Sketcher.Constraint("Vertical", 13),
    Sketcher.Constraint("PointOnObject", 3, 2, -2),
    Sketcher.Constraint("PointOnObject", 7, 2, -2),
    Sketcher.Constraint("PointOnObject", 10, 2, -2),
    Sketcher.Constraint("Parallel", 0, 10),
    Sketcher.Constraint("Horizontal", 1, 2, 7, 2),
    Sketcher.Constraint("Vertical", 4, 2, 6, 2),
    Sketcher.Constraint("Vertical", 2, 2, 12, 2),
    Sketcher.Constraint("Equal", 12, 11),
    Sketcher.Constraint("Equal", 5, 6),
    Sketcher.Constraint("Equal", 4, 7),
    Sketcher.Constraint("DistanceX", 3, 2, 3, 1, Q("30 mm")),
    Sketcher.Constraint("Radius", 9, Q("10 mm")),
    Sketcher.Constraint("Angle", 0, Q("45 deg")),
    Sketcher.Constraint("DistanceX", -1, 1, 4, 2, Q("5 mm")),
    Sketcher.Constraint("DistanceX", -1, 1, 5, 2, Q("10 mm")),
    Sketcher.Constraint("DistanceY", -1, 1, 13, 2, Q("70 mm")),
    Sketcher.Constraint("DistanceY", 1, 2, 2, 2, Q("36 mm")),
    Sketcher.Constraint("DistanceY", 4, 2, 3, 2, Q("2 mm")),
    Sketcher.Constraint("Angle", 2, Q("119.1302 deg")),
    Sketcher.Constraint("Angle", 8, Q("-37.1703 deg")),
    Sketcher.Constraint("DistanceX", 9, 1, 0, 2, Q("38.11 mm")),
    Sketcher.Constraint("DistanceY", 1, 1, 1, 2, Q("30.5048 mm")),
])
pad7 = body.newObject("PartDesign::Pad", "Pad006")
pad7.Profile = sketch13
pad7.Length = 15
doc.recompute()

datumplane = body.newObject("PartDesign::Plane", "DatumPlane")
datumplane.AttachmentSupport = (doc.getObject("XY_Plane"), [""])
datumplane.MapMode = "FlatFace"
datumplane.AttachmentOffset = App.Placement(App.Vector(0, 0, -15), App.Rotation())
mirrored = body.newObject("PartDesign::Mirrored", "Mirrored")
mirrored.Originals = [pad7]
mirrored.MirrorPlane = (datumplane, [""])
body.Tip = mirrored

doc.recompute()
